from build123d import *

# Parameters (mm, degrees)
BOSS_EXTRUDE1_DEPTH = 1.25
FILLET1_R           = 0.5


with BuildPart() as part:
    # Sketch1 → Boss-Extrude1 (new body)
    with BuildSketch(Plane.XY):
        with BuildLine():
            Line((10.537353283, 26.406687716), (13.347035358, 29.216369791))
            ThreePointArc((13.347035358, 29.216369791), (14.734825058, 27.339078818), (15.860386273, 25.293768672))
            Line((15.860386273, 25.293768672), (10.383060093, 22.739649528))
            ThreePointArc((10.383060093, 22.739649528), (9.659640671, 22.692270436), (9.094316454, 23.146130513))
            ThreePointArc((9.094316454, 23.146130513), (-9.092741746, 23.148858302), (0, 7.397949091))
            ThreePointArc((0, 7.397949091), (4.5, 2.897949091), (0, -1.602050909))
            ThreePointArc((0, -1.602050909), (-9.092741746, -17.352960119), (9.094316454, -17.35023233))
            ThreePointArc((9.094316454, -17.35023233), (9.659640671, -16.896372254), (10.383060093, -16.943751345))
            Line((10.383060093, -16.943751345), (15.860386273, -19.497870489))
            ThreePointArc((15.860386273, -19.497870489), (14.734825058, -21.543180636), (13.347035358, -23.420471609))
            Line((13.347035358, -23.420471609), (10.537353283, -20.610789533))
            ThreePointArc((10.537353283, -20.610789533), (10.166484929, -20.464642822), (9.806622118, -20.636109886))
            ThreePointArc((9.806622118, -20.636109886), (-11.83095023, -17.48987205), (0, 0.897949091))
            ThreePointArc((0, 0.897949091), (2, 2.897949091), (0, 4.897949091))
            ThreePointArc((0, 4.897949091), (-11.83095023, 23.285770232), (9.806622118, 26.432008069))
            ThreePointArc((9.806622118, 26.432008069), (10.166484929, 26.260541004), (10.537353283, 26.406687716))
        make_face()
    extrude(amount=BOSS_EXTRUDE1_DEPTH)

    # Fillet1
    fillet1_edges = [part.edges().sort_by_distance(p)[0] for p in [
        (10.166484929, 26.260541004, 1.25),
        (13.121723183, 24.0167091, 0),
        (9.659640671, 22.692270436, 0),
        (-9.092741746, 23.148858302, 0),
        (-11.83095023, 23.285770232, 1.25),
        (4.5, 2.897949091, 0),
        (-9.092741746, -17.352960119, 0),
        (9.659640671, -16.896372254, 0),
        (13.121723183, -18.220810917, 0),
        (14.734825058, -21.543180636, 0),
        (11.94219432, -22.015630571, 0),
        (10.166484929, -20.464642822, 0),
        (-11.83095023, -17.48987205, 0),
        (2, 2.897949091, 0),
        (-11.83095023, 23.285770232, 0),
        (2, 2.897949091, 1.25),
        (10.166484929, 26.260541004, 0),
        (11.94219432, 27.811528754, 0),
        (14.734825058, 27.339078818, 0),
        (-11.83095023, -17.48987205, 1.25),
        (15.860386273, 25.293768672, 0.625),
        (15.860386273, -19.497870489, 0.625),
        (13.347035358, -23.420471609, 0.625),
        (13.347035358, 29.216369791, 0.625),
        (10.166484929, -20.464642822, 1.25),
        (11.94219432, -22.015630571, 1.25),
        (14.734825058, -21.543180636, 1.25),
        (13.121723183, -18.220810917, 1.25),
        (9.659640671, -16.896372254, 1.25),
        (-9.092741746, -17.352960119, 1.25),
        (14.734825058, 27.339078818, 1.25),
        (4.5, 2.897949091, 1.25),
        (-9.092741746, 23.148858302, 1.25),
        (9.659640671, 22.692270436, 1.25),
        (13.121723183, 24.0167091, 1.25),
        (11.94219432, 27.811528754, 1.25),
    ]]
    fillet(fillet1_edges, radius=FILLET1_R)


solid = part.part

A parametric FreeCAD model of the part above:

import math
import FreeCAD as App
import Part
import Sketcher

V = App.Vector
Q = App.Units.Quantity

doc = App.newDocument("Part")
params = doc.addObject("Spreadsheet::Sheet", "Params")
for row, (alias, value) in enumerate([
    ("sketch1_radius", "13 mm"),
    ("sketch1_radius2", "2 mm"),
    ("sketch1_radius3", "1 mm"),
    ("sketch1_radius4", "0.5 mm"),
    ("sketch1_radius5", "17.5 mm"),
    ("pad1_length", "1.25 mm"),
    ("fillet_radius", "0.5 mm"),
], start=1):
    params.set(f"A{row}", alias)
    params.set(f"B{row}", "=" + value)
    params.setAlias(f"B{row}", alias)

body = doc.addObject("PartDesign::Body", "Body")

# Sketch on XY plane
sketch1 = body.newObject("Sketcher::SketchObject", "Sketch")
sketch1.AttachmentSupport = (doc.getObject("XY_Plane"), [""])
sketch1.MapMode = "FlatFace"
sketch1.addGeometry([
    Part.LineSegment(V(13.3, 29.2, 0), V(10.5, 26.4, 0)),  # 0
    Part.ArcOfCircle(Part.Circle(V(10.2, 26.8, 0), V(0, 0, 1), 0.5), math.radians(-139), math.radians(-45)),  # 1
    Part.ArcOfCircle(Part.Circle(V(0, 17.9, 0), V(0, 0, 1), 13), math.radians(41), math.radians(270)),  # 2
    Part.ArcOfCircle(Part.Circle(V(0, 2.9, 0), V(0, 0, 1), 2), math.radians(-90), math.radians(90)),  # 3
    Part.ArcOfCircle(Part.Circle(V(0, -12.1, 0), V(0, 0, 1), 13), math.radians(90), math.radians(319)),  # 4
    Part.ArcOfCircle(Part.Circle(V(10.2, -21, 0), V(0, 0, 1), 0.5), math.radians(45), math.radians(139)),  # 5
    Part.LineSegment(V(10.5, -20.6, 0), V(13.3, -23.4, 0)),  # 6
    Part.ArcOfCircle(Part.Circle(V(0, -12.1, 0), V(0, 0, 1), 17.5), math.radians(-40.3), math.radians(-25)),  # 7
    Part.LineSegment(V(15.9, -19.5, 0), V(10.4, -16.9, 0)),  # 8
    Part.ArcOfCircle(Part.Circle(V(10, -17.9, 0), V(0, 0, 1), 1), math.radians(65), math.radians(150)),  # 9
    Part.ArcOfCircle(Part.Circle(V(0, -12.1, 0), V(0, 0, 1), 10.5), math.radians(90), math.radians(330)),  # 10
    Part.ArcOfCircle(Part.Circle(V(0, 2.9, 0), V(0, 0, 1), 4.5), math.radians(-90), math.radians(90)),  # 11
    Part.ArcOfCircle(Part.Circle(V(0, 17.9, 0), V(0, 0, 1), 10.5), math.radians(30), math.radians(270)),  # 12
    Part.ArcOfCircle(Part.Circle(V(10, 23.6, 0), V(0, 0, 1), 1), math.radians(-150), math.radians(-65)),  # 13
    Part.LineSegment(V(10.4, 22.7, 0), V(15.9, 25.3, 0)),  # 14
    Part.ArcOfCircle(Part.Circle(V(0, 17.9, 0), V(0, 0, 1), 17.5), math.radians(25), math.radians(40.3)),  # 15
], False)
sketch1.addConstraint([
    Sketcher.Constraint("Tangent", 0, 2, 1, 2),
    Sketcher.Constraint("Tangent", 1, 1, 2, 1),
    Sketcher.Constraint("Tangent", 2, 2, 3, 2),
    Sketcher.Constraint("Tangent", 3, 1, 4, 1),
    Sketcher.Constraint("Tangent", 4, 2, 5, 2),
    Sketcher.Constraint("Tangent", 5, 1, 6, 1),
    Sketcher.Constraint("Coincident", 6, 2, 7, 1),
    Sketcher.Constraint("Coincident", 7, 2, 8, 1),
    Sketcher.Constraint("Tangent", 8, 2, 9, 1),
    Sketcher.Constraint("Tangent", 9, 2, 10, 2),
    Sketcher.Constraint("Tangent", 10, 1, 11, 1),
    Sketcher.Constraint("Tangent", 11, 2, 12, 2),
    Sketcher.Constraint("Tangent", 12, 1, 13, 1),
    Sketcher.Constraint("Tangent", 13, 2, 14, 1),
    Sketcher.Constraint("Coincident", 14, 2, 15, 1),
    Sketcher.Constraint("Coincident", 15, 2, 0, 1),
    Sketcher.Constraint("Coincident", 7, 3, 4, 3),
    Sketcher.Constraint("Coincident", 10, 3, 4, 3),
    Sketcher.Constraint("Coincident", 11, 3, 3, 3),
    Sketcher.Constraint("Coincident", 12, 3, 2, 3),
    Sketcher.Constraint("Coincident", 15, 3, 2, 3),
    Sketcher.Constraint("Equal", 2, 4),
    Sketcher.Constraint("Equal", 1, 5),
    Sketcher.Constraint("Equal", 9, 13),
    Sketcher.Constraint("Equal", 7, 15),
    Sketcher.Constraint("PointOnObject", 2, 3, -2),
    Sketcher.Constraint("PointOnObject", 3, 3, -2),
    Sketcher.Constraint("PointOnObject", 4, 3, -2),
    Sketcher.Constraint("Perpendicular", 0, 6),
    Sketcher.Constraint("Vertical", 1, 3, 5, 3),
    Sketcher.Constraint("Vertical", 9, 3, 13, 3),
    Sketcher.Constraint("Vertical", 0, 2, 5, 1),
    Sketcher.Constraint("Vertical", 8, 2, 13, 2),
    Sketcher.Constraint("Radius", 2, 13.0),
    Sketcher.Constraint("Radius", 3, 2.0),
    Sketcher.Constraint("Radius", 9, 1.0),
    Sketcher.Constraint("Radius", 1, 0.5),
    Sketcher.Constraint("Radius", 7, 17.5),
    Sketcher.Constraint("Radius", 10, 10.5),
    Sketcher.Constraint("Angle", 8, Q("155 deg")),
    Sketcher.Constraint("DistanceX", -1, 1, 1, 3, 10.1838),
    Sketcher.Constraint("DistanceY", 6, 2, 7, 2, 3.922601),
    Sketcher.Constraint("DistanceY", -1, 1, 1, 3, 26.760241),
])
sketch1.setExpression("Constraints[33]", "Params.sketch1_radius")
sketch1.setExpression("Constraints[34]", "Params.sketch1_radius2")
sketch1.setExpression("Constraints[35]", "Params.sketch1_radius3")
sketch1.setExpression("Constraints[36]", "Params.sketch1_radius4")
sketch1.setExpression("Constraints[37]", "Params.sketch1_radius5")
pad1 = body.newObject("PartDesign::Pad", "Pad")
pad1.Profile = sketch1
pad1.setExpression("Length", "Params.pad1_length")
doc.recompute()

fillet = body.newObject("PartDesign::Fillet", "Fillet")
fillet.Base = (pad1, ["Edge1"])
fillet.UseAllEdges = True
fillet.setExpression("Radius", "Params.fillet_radius")

doc.recompute()
